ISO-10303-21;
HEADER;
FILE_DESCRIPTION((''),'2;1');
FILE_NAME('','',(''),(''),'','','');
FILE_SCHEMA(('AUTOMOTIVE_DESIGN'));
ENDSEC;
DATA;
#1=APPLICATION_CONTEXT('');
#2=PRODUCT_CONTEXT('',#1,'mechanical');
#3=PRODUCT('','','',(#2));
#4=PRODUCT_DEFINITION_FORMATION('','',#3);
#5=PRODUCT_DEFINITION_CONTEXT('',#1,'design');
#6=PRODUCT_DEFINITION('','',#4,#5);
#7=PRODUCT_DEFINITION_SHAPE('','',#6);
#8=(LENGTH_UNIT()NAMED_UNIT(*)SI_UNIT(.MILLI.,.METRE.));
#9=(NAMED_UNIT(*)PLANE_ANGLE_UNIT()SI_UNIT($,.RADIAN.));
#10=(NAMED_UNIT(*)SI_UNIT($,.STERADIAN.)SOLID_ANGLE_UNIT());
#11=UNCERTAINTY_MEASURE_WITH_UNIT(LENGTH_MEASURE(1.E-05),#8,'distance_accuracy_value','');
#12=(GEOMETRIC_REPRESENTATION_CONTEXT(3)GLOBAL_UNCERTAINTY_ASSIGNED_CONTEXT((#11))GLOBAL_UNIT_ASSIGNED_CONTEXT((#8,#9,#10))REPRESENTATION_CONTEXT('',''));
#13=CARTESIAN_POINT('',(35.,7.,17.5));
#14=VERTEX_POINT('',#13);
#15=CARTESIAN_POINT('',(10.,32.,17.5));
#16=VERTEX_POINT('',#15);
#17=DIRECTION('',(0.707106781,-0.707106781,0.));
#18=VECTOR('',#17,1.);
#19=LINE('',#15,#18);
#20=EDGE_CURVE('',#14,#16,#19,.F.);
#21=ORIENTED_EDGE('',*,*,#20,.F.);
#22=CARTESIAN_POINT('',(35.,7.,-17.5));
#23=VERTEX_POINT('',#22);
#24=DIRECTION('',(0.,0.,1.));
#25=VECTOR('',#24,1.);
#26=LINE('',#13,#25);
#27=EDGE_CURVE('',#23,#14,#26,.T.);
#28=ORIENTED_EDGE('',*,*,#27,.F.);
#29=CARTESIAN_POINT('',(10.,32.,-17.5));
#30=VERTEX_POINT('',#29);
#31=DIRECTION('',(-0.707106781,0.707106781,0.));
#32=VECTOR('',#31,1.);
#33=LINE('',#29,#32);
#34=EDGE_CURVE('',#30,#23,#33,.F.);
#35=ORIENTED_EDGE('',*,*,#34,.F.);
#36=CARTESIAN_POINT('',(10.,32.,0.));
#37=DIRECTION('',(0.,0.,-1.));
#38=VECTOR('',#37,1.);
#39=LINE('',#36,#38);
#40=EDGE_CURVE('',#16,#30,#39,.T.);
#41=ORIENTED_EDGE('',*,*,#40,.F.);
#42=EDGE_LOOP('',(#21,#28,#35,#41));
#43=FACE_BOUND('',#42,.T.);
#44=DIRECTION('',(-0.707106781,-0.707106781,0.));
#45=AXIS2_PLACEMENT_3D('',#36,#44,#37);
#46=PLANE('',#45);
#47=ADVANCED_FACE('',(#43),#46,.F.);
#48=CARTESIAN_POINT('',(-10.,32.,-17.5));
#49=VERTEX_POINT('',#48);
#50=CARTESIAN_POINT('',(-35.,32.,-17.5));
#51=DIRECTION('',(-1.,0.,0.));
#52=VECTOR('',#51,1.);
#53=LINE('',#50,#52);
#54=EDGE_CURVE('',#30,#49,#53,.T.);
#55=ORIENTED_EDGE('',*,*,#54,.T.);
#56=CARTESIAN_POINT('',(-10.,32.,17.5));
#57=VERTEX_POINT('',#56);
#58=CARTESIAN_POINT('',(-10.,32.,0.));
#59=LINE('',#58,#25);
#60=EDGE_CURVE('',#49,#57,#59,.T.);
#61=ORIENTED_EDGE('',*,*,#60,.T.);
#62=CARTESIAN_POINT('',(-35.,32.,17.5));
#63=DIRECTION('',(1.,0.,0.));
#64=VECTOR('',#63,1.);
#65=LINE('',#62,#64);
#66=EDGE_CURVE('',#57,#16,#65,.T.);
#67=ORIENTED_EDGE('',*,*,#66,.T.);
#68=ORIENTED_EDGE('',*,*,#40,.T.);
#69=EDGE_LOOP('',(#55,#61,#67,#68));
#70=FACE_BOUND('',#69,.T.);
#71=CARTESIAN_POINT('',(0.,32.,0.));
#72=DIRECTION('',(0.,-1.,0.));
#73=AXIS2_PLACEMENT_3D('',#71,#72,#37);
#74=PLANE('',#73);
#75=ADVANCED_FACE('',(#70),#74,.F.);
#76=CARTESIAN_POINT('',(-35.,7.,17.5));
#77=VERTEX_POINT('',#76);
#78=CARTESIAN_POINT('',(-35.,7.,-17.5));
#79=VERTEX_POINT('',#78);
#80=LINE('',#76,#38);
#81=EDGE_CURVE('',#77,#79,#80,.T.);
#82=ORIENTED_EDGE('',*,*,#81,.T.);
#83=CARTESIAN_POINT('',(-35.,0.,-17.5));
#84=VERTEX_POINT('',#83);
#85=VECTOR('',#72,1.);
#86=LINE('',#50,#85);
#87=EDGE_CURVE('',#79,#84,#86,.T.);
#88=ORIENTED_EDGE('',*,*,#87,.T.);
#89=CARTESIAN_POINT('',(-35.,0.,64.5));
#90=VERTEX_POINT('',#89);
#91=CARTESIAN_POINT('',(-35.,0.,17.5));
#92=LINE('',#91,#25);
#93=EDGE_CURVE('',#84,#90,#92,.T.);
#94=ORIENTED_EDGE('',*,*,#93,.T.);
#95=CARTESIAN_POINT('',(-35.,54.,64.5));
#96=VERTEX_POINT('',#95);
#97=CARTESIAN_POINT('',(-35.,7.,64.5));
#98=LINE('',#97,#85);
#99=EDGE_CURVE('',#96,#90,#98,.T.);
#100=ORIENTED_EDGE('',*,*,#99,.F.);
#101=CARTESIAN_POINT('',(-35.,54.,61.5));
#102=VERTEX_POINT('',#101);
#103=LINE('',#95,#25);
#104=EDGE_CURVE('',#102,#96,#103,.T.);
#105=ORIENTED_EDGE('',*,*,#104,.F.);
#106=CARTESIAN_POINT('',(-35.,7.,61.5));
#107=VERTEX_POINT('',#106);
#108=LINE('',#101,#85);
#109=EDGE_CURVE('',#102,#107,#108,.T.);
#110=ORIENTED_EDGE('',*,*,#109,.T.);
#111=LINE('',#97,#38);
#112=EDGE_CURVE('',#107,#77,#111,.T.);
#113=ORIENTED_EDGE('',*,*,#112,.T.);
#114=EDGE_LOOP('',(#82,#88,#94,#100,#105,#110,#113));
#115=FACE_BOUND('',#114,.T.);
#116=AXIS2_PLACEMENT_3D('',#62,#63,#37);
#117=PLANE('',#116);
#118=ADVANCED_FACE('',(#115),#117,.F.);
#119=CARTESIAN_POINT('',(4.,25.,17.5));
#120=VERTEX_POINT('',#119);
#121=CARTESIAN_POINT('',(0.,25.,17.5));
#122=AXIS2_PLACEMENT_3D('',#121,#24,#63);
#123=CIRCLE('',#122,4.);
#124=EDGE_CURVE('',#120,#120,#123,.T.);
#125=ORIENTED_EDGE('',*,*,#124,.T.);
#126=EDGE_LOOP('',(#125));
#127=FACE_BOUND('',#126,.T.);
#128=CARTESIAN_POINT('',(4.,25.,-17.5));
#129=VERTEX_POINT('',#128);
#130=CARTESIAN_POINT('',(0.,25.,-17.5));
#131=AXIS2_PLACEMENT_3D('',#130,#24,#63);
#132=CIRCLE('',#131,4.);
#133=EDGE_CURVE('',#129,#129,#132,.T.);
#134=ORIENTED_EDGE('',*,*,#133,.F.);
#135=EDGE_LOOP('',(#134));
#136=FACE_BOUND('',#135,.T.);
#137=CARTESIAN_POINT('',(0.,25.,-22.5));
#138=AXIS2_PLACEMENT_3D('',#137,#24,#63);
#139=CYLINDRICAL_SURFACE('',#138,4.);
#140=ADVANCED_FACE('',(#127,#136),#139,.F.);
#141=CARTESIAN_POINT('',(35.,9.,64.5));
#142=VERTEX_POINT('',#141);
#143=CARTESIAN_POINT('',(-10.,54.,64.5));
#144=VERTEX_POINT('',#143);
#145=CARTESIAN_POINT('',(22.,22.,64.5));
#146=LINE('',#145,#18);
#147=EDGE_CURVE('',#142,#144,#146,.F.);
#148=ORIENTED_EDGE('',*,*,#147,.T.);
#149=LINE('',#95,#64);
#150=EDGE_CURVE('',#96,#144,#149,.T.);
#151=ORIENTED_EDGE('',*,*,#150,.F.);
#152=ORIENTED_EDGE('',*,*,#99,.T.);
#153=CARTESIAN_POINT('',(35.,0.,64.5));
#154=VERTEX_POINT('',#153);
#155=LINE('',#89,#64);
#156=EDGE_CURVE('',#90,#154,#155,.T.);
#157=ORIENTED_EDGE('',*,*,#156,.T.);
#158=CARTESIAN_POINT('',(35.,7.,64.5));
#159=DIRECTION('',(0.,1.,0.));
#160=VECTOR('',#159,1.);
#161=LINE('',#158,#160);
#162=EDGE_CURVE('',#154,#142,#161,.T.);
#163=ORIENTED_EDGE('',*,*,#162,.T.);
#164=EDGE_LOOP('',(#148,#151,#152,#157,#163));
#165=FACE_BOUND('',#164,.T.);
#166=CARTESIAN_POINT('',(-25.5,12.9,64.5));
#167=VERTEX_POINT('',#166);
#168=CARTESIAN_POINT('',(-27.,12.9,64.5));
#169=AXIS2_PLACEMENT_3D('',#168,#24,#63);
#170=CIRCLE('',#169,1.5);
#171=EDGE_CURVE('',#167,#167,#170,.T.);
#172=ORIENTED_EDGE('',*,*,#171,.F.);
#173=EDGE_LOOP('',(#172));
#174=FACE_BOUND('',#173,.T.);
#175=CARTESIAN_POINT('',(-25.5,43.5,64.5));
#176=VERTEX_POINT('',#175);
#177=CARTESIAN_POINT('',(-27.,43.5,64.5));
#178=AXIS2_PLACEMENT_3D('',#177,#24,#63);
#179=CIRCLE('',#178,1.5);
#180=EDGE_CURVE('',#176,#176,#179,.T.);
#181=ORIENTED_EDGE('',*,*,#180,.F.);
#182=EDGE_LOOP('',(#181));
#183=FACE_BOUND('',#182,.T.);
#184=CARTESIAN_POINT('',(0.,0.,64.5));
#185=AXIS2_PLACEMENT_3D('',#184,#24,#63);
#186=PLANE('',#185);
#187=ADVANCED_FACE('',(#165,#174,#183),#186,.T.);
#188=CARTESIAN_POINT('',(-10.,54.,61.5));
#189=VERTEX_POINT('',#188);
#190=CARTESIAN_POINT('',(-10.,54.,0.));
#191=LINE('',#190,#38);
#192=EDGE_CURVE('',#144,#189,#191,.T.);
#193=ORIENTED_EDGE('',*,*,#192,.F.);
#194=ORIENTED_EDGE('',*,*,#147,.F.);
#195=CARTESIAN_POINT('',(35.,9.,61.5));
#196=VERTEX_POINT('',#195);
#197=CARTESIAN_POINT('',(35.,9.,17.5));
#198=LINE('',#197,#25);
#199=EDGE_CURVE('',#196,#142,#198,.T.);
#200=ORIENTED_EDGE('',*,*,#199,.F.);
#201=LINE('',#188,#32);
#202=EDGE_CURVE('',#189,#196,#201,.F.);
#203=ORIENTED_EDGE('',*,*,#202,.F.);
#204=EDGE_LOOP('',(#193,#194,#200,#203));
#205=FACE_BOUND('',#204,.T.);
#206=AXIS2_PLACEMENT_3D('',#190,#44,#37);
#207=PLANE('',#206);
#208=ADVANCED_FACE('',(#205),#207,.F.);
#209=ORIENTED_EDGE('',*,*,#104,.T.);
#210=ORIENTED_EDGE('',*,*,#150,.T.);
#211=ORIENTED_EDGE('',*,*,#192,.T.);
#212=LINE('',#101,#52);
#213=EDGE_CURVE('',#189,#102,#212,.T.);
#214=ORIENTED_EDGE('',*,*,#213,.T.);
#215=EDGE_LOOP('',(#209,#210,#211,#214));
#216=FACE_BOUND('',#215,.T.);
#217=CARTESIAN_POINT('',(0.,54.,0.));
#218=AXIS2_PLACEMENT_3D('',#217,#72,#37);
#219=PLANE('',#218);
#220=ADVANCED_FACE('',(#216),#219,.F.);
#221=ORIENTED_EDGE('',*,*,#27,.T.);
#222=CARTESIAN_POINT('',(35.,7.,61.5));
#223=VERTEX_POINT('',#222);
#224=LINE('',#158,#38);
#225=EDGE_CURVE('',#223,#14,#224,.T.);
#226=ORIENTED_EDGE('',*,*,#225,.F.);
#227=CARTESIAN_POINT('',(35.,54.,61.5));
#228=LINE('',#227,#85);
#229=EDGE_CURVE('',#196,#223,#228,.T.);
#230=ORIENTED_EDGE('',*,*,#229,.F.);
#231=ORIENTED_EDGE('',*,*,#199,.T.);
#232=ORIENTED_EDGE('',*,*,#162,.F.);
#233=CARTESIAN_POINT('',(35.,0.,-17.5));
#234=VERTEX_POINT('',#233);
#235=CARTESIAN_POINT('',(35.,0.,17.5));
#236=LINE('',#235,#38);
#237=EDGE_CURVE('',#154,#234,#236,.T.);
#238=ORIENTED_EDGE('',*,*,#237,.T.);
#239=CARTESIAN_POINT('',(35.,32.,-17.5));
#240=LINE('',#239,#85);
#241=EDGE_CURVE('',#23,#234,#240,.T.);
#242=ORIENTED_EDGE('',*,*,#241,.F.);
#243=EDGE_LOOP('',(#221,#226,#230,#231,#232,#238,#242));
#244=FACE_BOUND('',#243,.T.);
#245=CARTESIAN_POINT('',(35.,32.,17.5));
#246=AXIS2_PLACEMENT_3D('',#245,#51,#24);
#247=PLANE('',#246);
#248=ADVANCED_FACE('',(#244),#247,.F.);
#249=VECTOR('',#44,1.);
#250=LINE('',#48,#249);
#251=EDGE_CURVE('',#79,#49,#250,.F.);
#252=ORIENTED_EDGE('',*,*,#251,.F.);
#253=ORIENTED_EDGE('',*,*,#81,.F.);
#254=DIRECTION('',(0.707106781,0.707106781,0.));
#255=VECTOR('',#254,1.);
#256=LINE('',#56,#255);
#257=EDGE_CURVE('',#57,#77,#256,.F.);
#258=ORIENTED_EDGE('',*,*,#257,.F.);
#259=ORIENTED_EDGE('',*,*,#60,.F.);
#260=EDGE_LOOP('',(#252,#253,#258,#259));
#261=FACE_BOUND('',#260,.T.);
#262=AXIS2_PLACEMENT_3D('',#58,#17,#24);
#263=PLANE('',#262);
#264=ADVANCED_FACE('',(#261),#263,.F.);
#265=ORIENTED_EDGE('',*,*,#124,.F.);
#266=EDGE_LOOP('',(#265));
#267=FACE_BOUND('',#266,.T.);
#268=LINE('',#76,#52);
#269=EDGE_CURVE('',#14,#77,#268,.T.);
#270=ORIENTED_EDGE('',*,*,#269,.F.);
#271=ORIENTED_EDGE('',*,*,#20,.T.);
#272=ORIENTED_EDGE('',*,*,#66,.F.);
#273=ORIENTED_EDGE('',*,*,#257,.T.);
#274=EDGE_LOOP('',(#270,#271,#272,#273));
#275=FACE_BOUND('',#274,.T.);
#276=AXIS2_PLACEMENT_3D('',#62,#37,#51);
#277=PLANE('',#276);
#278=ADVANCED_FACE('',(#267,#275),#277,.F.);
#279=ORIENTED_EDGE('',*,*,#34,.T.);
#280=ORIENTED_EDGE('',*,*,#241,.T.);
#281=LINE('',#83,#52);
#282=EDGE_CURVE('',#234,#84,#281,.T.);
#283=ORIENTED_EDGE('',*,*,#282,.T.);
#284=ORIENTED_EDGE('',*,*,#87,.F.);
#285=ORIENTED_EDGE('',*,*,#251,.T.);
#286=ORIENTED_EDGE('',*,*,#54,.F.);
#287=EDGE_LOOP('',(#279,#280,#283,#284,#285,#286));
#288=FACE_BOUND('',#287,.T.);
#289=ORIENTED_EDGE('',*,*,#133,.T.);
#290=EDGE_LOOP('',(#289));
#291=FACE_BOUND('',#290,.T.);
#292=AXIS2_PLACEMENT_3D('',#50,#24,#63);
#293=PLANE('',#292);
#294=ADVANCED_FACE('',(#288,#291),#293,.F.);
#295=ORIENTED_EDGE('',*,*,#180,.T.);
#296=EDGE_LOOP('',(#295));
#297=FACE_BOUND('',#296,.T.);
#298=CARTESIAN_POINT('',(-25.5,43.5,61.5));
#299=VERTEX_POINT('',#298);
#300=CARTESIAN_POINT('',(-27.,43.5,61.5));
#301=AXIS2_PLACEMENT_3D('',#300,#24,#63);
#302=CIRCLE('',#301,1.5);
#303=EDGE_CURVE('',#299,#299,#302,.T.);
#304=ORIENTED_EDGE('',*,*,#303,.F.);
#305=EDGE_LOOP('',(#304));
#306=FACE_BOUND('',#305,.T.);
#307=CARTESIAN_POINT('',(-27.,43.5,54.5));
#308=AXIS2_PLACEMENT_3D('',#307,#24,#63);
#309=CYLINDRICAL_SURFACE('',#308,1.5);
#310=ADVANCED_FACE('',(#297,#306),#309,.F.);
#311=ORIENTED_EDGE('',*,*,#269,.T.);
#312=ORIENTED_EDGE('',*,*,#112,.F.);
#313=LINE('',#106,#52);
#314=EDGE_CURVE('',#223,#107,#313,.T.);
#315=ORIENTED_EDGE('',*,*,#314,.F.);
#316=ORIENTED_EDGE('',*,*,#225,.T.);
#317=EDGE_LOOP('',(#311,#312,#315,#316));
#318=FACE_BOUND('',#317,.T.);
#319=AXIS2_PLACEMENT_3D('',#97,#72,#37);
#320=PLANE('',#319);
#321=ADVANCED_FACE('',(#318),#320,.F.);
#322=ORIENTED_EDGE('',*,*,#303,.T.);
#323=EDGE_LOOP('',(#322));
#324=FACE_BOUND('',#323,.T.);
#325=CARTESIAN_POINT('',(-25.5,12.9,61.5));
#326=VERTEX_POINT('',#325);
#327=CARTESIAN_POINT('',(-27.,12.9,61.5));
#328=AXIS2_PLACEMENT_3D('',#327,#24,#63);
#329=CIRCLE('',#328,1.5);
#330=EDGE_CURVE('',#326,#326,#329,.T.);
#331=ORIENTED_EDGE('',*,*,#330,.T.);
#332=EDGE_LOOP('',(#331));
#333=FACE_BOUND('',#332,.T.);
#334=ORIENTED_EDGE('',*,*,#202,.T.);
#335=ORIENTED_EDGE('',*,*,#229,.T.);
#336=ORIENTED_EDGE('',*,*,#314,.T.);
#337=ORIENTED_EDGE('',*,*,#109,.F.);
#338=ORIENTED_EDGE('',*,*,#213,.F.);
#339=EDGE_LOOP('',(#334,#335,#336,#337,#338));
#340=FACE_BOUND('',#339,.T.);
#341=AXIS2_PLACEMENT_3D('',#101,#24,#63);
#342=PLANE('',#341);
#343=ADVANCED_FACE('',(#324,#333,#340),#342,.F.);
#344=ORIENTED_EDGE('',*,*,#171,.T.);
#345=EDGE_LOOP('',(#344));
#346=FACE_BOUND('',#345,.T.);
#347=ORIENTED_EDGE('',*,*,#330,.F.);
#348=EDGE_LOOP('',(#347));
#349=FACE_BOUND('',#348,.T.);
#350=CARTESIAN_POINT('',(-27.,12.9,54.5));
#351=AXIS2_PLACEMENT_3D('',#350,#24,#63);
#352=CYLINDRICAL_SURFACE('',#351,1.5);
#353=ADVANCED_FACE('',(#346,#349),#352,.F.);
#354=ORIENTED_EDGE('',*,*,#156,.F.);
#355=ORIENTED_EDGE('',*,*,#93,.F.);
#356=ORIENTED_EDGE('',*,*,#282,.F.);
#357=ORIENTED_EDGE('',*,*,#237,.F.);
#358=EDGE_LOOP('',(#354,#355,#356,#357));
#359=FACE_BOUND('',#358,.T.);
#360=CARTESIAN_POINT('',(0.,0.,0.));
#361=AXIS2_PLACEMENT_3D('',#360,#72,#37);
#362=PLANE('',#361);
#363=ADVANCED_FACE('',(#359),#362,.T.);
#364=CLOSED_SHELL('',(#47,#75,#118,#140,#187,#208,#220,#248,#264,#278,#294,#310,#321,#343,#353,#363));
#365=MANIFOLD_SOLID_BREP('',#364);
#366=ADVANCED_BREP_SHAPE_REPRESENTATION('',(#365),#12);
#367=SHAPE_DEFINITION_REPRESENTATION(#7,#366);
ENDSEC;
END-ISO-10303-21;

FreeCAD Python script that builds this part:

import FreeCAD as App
import Part
import Sketcher


def edges_at(feature, points):
    """Names of the edges that pass closest to the given points."""
    edges = feature.Shape.Edges
    near = lambda p: min(range(len(edges)), key=lambda i: edges[i].distToShape(Part.Vertex(*p))[0])
    return sorted({f"Edge{near(p) + 1}" for p in points})

doc = App.newDocument("Part")
body = doc.addObject("PartDesign::Body", "Body")

# Sketch on XZ plane
sketch1 = body.newObject("Sketcher::SketchObject", "Sketch")
sketch1.AttachmentSupport = (doc.getObject("XZ_Plane"), [""])
sketch1.MapMode = "FlatFace"
sketch1.addGeometry([
    Part.LineSegment(App.Vector(-35, -17.5, 0), App.Vector(-35, 17.5, 0)),
    Part.LineSegment(App.Vector(-35, 17.5, 0), App.Vector(35, 17.5, 0)),
    Part.LineSegment(App.Vector(35, 17.5, 0), App.Vector(35, -17.5, 0)),
    Part.LineSegment(App.Vector(35, -17.5, 0), App.Vector(-35, -17.5, 0)),
], False)
sketch1.addConstraint([
    Sketcher.Constraint("Coincident", 0, 2, 1, 1),
    Sketcher.Constraint("Coincident", 1, 2, 2, 1),
    Sketcher.Constraint("Coincident", 2, 2, 3, 1),
    Sketcher.Constraint("Coincident", 3, 2, 0, 1),
    Sketcher.Constraint("Vertical", 0),
    Sketcher.Constraint("Horizontal", 1),
    Sketcher.Constraint("Vertical", 2),
    Sketcher.Constraint("Horizontal", 3),
    Sketcher.Constraint("Symmetric", 0, 2, 2, 2, -1, 1),
    Sketcher.Constraint("DistanceX", 1, 1, 1, 2, 70.0),
    Sketcher.Constraint("DistanceY", 0, 1, 0, 2, 35.0),
])
pad1 = body.newObject("PartDesign::Pad", "Pad")
pad1.Profile = sketch1
pad1.Length = 32
pad1.Reversed = True

# Sketch on XY plane
sketch2 = body.newObject("Sketcher::SketchObject", "Sketch001")
sketch2.AttachmentSupport = (doc.getObject("XY_Plane"), [""])
sketch2.MapMode = "FlatFace"
sketch2.AttachmentOffset = App.Placement(App.Vector(0, 0, 17.5), App.Rotation())
sketch2.addGeometry(Part.Circle(App.Vector(0, 25, 0), App.Vector(0, 0, 1), 4), False)
sketch2.addConstraint([
    Sketcher.Constraint("PointOnObject", 0, 3, -2),
    Sketcher.Constraint("Diameter", 0, 8.0),
    Sketcher.Constraint("DistanceY", -1, 1, 0, 3, 25.0),
])
pocket1 = body.newObject("PartDesign::Pocket", "Pocket")
pocket1.Profile = sketch2
pocket1.Length = 40
doc.recompute()

chamfer = body.newObject("PartDesign::Chamfer", "Chamfer")
chamfer.Base = (pocket1, edges_at(pocket1, [(-35, 32, 0), (35, 32, 0)]))
chamfer.Size = 25

# Sketch on XY plane
sketch3 = body.newObject("Sketcher::SketchObject", "Sketch002")
sketch3.AttachmentSupport = (doc.getObject("XY_Plane"), [""])
sketch3.MapMode = "FlatFace"
sketch3.AttachmentOffset = App.Placement(App.Vector(0, 0, 17.5), App.Rotation())
sketch3.addGeometry([
    Part.LineSegment(App.Vector(-35, 7, 0), App.Vector(-35, 0, 0)),
    Part.LineSegment(App.Vector(-35, 0, 0), App.Vector(35, 0, 0)),
    Part.LineSegment(App.Vector(35, 0, 0), App.Vector(35, 7, 0)),
    Part.LineSegment(App.Vector(35, 7, 0), App.Vector(-35, 7, 0)),
], False)
sketch3.addConstraint([
    Sketcher.Constraint("Coincident", 0, 2, 1, 1),
    Sketcher.Constraint("Coincident", 1, 2, 2, 1),
    Sketcher.Constraint("Coincident", 2, 2, 3, 1),
    Sketcher.Constraint("Coincident", 3, 2, 0, 1),
    Sketcher.Constraint("Vertical", 0),
    Sketcher.Constraint("Horizontal", 1),
    Sketcher.Constraint("Vertical", 2),
    Sketcher.Constraint("Horizontal", 3),
    Sketcher.Constraint("Symmetric", 0, 2, 1, 2, -1, 1),
    Sketcher.Constraint("DistanceX", 1, 1, 1, 2, 70.0),
    Sketcher.Constraint("DistanceY", 0, 2, 0, 1, 7.0),
])
pad2 = body.newObject("PartDesign::Pad", "Pad001")
pad2.Profile = sketch3
pad2.Length = 47

# Sketch on XZ plane
sketch4 = body.newObject("Sketcher::SketchObject", "Sketch003")
sketch4.AttachmentSupport = (doc.getObject("XZ_Plane"), [""])
sketch4.MapMode = "FlatFace"
sketch4.AttachmentOffset = App.Placement(App.Vector(0, 0, -7), App.Rotation())
sketch4.addGeometry([
    Part.LineSegment(App.Vector(-35, 61.5, 0), App.Vector(-35, 64.5, 0)),
    Part.LineSegment(App.Vector(-35, 64.5, 0), App.Vector(35, 64.5, 0)),
    Part.LineSegment(App.Vector(35, 64.5, 0), App.Vector(35, 61.5, 0)),
    Part.LineSegment(App.Vector(35, 61.5, 0), App.Vector(-35, 61.5, 0)),
], False)
sketch4.addConstraint([
    Sketcher.Constraint("Coincident", 0, 2, 1, 1),
    Sketcher.Constraint("Coincident", 1, 2, 2, 1),
    Sketcher.Constraint("Coincident", 2, 2, 3, 1),
    Sketcher.Constraint("Coincident", 3, 2, 0, 1),
    Sketcher.Constraint("Vertical", 0),
    Sketcher.Constraint("Horizontal", 1),
    Sketcher.Constraint("Vertical", 2),
    Sketcher.Constraint("Horizontal", 3),
    Sketcher.Constraint("DistanceX", 1, 1, 1, 2, 70.0),
    Sketcher.Constraint("DistanceY", 0, 1, 0, 2, 3.0),
    Sketcher.Constraint("DistanceX", 0, 2, -1, 1, 35.0),
    Sketcher.Constraint("DistanceY", -1, 1, 0, 2, 64.5),
])
pad3 = body.newObject("PartDesign::Pad", "Pad002")
pad3.Profile = sketch4
pad3.Length = 47
pad3.Reversed = True

# Sketch on XY plane
sketch5 = body.newObject("Sketcher::SketchObject", "Sketch004")
sketch5.AttachmentSupport = (doc.getObject("XY_Plane"), [""])
sketch5.MapMode = "FlatFace"
sketch5.AttachmentOffset = App.Placement(App.Vector(0, 0, 64.5), App.Rotation())
sketch5.addGeometry([
    Part.Circle(App.Vector(-27, 12.9, 0), App.Vector(0, 0, 1), 1.5),
    Part.Circle(App.Vector(-27, 43.5, 0), App.Vector(0, 0, 1), 1.5),
], False)
sketch5.addConstraint([
    Sketcher.Constraint("Equal", 0, 1),
    Sketcher.Constraint("Vertical", 0, 3, 1, 3),
    Sketcher.Constraint("Diameter", 0, 3.0),
    Sketcher.Constraint("DistanceX", 0, 3, -1, 1, 27.0),
    Sketcher.Constraint("DistanceY", -1, 1, 0, 3, 12.9),
    Sketcher.Constraint("DistanceY", -1, 1, 1, 3, 43.5),
])
pocket2 = body.newObject("PartDesign::Pocket", "Pocket001")
pocket2.Profile = sketch5
pocket2.Length = 10
doc.recompute()

chamfer2 = body.newObject("PartDesign::Chamfer", "Chamfer001")
chamfer2.Base = (pocket2, edges_at(pocket2, [(35, 54, 63)]))
chamfer2.Size = 45

doc.recompute()
